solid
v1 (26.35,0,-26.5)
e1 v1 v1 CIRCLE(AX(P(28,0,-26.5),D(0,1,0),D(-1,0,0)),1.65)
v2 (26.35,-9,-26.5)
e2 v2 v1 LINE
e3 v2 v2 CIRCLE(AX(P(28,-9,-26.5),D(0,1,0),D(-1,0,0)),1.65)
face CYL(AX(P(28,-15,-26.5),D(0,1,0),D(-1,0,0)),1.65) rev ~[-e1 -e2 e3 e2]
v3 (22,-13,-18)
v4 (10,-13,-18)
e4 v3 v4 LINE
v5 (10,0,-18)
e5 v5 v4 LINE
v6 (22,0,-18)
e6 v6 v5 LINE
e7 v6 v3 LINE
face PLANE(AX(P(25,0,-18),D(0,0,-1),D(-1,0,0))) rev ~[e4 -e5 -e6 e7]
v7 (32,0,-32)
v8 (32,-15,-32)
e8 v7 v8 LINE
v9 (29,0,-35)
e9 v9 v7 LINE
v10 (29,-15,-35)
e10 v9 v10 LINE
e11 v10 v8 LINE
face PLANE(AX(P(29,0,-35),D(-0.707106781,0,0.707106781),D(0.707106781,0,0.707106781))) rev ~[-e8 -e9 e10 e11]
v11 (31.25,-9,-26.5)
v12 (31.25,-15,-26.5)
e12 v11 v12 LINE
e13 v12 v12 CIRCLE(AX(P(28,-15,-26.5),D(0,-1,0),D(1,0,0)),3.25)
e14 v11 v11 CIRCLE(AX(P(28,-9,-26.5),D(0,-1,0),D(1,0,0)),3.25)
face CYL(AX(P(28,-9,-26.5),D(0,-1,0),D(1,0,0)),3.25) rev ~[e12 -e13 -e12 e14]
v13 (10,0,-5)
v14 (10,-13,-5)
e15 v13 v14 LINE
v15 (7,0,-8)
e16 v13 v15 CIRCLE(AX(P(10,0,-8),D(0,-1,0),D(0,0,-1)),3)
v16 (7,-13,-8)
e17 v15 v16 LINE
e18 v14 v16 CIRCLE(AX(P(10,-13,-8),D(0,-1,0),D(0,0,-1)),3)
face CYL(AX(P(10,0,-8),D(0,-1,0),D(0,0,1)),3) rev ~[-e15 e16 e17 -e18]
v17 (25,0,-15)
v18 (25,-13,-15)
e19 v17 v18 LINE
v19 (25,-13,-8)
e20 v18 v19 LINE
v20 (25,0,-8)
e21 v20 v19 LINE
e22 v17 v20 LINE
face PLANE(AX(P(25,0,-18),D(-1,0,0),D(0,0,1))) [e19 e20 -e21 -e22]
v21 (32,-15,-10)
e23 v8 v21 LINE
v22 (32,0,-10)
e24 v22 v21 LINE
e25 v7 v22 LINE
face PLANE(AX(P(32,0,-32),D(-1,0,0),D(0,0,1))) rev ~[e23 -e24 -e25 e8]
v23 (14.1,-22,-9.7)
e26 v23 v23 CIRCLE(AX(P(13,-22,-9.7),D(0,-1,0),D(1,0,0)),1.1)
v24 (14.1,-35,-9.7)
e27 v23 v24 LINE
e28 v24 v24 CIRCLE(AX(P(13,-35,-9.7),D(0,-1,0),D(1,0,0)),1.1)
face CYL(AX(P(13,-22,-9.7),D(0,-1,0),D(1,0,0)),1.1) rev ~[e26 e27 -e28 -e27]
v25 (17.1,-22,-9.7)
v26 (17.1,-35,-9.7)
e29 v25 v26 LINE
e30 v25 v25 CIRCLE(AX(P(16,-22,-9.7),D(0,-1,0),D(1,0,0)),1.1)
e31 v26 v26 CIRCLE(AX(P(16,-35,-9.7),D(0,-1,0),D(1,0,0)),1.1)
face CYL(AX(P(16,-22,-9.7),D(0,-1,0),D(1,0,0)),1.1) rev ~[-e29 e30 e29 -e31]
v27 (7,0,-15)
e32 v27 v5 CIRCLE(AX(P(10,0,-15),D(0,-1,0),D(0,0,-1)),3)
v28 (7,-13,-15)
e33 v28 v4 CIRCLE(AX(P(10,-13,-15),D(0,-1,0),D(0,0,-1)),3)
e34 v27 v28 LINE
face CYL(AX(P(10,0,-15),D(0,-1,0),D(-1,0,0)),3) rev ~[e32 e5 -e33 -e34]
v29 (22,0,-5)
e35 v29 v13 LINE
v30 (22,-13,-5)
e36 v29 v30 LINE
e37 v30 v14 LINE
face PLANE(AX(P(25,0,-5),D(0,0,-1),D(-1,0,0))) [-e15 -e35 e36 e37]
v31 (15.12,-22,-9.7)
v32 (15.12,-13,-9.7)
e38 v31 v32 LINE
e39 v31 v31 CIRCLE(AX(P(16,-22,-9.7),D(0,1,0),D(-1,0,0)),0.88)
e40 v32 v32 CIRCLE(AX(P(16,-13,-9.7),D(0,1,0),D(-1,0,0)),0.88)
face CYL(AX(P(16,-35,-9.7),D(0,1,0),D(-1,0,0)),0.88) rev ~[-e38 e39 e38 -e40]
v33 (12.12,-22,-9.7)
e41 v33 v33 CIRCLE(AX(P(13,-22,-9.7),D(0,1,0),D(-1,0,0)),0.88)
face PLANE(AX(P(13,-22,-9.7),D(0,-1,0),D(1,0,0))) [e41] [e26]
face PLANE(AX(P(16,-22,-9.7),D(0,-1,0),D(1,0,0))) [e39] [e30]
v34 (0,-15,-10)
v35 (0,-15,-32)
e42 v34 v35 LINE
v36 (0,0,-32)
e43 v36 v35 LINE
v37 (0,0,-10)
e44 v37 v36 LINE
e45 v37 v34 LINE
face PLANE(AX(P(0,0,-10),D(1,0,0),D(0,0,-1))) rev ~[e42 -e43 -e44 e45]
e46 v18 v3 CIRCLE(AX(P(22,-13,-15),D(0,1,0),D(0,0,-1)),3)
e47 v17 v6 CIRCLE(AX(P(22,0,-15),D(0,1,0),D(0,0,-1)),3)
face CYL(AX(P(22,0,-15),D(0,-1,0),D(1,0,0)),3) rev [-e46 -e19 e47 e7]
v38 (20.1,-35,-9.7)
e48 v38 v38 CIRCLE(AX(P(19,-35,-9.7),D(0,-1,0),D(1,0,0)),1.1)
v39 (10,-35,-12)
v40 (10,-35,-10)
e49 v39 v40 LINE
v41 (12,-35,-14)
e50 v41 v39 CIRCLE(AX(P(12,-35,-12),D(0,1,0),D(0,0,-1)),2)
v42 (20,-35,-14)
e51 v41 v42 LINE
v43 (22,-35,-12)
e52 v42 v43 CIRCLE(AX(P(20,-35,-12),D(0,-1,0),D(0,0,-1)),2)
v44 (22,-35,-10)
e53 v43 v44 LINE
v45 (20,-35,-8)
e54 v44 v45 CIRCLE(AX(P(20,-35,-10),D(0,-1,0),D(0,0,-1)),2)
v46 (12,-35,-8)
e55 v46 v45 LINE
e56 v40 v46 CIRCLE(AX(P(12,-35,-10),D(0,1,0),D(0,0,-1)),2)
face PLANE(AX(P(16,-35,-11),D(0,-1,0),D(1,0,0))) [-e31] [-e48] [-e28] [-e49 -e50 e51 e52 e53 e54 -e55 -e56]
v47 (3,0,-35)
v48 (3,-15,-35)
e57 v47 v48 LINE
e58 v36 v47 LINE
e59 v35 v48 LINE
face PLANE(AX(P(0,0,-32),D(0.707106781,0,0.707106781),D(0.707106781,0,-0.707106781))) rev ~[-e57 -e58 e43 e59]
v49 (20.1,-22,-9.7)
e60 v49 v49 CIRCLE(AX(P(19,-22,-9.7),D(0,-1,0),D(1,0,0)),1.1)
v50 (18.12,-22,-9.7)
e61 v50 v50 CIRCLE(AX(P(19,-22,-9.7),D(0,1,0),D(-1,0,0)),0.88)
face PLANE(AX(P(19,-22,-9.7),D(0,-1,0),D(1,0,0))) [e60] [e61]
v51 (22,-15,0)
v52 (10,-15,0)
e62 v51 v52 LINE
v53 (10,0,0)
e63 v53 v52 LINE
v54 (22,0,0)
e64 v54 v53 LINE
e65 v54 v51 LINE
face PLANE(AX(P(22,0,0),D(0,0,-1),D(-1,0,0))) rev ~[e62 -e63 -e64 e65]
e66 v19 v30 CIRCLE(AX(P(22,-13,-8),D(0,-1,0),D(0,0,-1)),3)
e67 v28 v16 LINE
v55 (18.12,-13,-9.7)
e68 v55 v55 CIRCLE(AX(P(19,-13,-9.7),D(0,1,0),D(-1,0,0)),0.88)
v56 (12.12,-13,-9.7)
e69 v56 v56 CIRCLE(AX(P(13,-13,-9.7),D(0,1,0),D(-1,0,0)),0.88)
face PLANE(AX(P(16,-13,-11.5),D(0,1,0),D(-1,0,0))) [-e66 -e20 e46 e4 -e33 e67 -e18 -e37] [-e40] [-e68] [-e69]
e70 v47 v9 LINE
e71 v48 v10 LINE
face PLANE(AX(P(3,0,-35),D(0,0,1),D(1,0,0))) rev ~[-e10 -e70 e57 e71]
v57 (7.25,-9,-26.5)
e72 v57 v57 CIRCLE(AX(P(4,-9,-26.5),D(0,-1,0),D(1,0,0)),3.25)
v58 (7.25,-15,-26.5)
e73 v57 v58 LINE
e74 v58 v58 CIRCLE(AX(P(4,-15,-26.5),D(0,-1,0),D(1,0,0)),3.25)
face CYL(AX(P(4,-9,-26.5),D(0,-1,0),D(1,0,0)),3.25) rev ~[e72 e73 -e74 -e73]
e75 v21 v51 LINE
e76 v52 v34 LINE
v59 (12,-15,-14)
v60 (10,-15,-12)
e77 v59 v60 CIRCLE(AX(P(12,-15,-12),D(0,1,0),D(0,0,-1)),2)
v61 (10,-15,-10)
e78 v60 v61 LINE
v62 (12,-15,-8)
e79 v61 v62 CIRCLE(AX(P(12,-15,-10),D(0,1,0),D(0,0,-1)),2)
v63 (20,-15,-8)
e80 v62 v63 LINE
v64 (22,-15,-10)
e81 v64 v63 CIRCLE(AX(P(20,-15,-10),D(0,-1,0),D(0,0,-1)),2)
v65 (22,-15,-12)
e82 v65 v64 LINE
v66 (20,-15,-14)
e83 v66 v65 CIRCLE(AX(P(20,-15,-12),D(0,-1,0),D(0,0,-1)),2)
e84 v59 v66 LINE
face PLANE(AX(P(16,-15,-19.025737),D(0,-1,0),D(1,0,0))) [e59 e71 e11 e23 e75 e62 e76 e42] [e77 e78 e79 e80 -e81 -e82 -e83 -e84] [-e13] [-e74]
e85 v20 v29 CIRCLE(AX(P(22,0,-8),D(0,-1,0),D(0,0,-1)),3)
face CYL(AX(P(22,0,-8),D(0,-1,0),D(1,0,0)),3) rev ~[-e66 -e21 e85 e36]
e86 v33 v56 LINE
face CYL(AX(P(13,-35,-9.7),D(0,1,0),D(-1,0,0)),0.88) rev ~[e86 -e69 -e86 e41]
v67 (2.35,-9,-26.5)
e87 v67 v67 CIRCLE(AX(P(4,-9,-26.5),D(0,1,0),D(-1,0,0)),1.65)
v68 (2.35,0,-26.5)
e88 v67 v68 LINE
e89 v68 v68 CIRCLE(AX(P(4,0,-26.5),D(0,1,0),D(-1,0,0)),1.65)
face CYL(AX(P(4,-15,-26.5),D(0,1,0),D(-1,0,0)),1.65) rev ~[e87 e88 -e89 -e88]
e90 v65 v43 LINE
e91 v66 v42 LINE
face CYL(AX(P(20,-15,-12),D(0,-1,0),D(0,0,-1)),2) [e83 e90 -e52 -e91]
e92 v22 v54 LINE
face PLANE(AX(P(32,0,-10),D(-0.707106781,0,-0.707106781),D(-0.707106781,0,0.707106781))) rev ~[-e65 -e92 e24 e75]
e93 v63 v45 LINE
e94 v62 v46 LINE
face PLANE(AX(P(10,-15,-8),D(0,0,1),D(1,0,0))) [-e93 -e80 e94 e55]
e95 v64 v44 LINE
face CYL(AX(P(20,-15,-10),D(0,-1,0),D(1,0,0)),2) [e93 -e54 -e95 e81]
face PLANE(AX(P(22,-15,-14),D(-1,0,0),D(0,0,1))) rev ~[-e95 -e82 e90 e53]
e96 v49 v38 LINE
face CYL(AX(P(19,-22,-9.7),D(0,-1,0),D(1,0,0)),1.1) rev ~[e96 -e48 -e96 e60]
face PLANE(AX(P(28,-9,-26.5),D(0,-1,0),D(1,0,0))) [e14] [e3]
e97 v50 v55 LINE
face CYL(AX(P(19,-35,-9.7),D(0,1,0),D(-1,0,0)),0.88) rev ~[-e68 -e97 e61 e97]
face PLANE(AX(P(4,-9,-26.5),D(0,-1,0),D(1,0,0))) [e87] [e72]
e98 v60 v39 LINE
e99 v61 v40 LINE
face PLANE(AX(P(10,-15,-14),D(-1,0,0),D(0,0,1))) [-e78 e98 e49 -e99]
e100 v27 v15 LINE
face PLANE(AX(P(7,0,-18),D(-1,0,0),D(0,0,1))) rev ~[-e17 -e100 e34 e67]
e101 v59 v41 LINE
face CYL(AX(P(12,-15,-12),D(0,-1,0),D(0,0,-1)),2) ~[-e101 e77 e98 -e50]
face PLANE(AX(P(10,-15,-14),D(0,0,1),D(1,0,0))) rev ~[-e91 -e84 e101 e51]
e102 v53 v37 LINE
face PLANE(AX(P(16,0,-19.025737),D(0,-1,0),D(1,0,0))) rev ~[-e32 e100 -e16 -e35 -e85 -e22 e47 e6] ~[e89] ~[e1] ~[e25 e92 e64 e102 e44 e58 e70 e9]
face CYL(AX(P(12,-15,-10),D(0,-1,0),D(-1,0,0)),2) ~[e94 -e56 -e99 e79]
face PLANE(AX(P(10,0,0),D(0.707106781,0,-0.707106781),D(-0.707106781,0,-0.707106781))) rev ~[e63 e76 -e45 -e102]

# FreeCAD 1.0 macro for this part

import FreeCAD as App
import Part
import Sketcher
Q = App.Units.Quantity


def edges_at(feature, points):
    """Names of the edges that pass closest to the given points."""
    edges = feature.Shape.Edges
    near = lambda p: min(range(len(edges)), key=lambda i: edges[i].distToShape(Part.Vertex(*p))[0])
    return sorted({f"Edge{near(p) + 1}" for p in points})


def add_polygon(sketch, points):
    """Adds a closed chain of lines whose ends are joined by coincident constraints."""
    first, n = sketch.GeometryCount, len(points)
    for a, b in zip(points, points[1:] + points[:1]):
        sketch.addGeometry(Part.LineSegment(App.Vector(*a, 0), App.Vector(*b, 0)), False)
    for i in range(n):
        sketch.addConstraint(Sketcher.Constraint("Coincident", first + i, 2, first + (i + 1) % n, 1))

doc = App.newDocument("Part")
body = doc.addObject("PartDesign::Body", "Body")

# Sketch on XZ plane
sketch1 = body.newObject("Sketcher::SketchObject", "Sketch")
sketch1.AttachmentSupport = (doc.getObject("XZ_Plane"), [""])
sketch1.MapMode = "FlatFace"
add_polygon(sketch1, [(22, 0), (10, 0), (0, -10), (0, -32), (3, -35), (29, -35), (32, -32), (32, -10)])  # lines 0-7
sketch1.addConstraint([
    Sketcher.Constraint("Horizontal", 0),
    Sketcher.Constraint("Vertical", 2),
    Sketcher.Constraint("Horizontal", 4),
    Sketcher.Constraint("Vertical", 6),
    Sketcher.Constraint("PointOnObject", 0, 2, -1),
    Sketcher.Constraint("PointOnObject", 1, 2, -2),
    Sketcher.Constraint("Perpendicular", 1, 3),
    Sketcher.Constraint("Perpendicular", 3, 5),
    Sketcher.Constraint("Perpendicular", 5, 7),
    Sketcher.Constraint("Horizontal", 2, 2, 5, 2),
    Sketcher.Constraint("Horizontal", 1, 2, 6, 2),
    Sketcher.Constraint("Equal", 3, 5),
    Sketcher.Constraint("DistanceX", 0, 2, 0, 1, Q("12 mm")),
    Sketcher.Constraint("DistanceX", 4, 1, 4, 2, Q("26 mm")),
    Sketcher.Constraint("DistanceY", 2, 2, 2, 1, Q("22 mm")),
    Sketcher.Constraint("DistanceX", -1, 1, 0, 2, Q("10 mm")),
])
pad1 = body.newObject("PartDesign::Pad", "Pad")
pad1.Profile = sketch1
pad1.Length = 15

# Sketch on XZ plane
sketch2 = body.newObject("Sketcher::SketchObject", "Sketch001")
sketch2.AttachmentSupport = (doc.getObject("XZ_Plane"), [""])
sketch2.MapMode = "FlatFace"
sketch2.AttachmentOffset = App.Placement(App.Vector(0, 0, 15), App.Rotation())
add_polygon(sketch2, [(10, -8), (10, -14), (22, -14), (22, -8)])  # lines 0-3
sketch2.addConstraint([
    Sketcher.Constraint("Vertical", 0),
    Sketcher.Constraint("Horizontal", 1),
    Sketcher.Constraint("Vertical", 2),
    Sketcher.Constraint("Horizontal", 3),
    Sketcher.Constraint("DistanceX", 1, 1, 1, 2, Q("12 mm")),
    Sketcher.Constraint("DistanceY", 0, 2, 0, 1, Q("6 mm")),
    Sketcher.Constraint("DistanceX", -1, 1, 0, 2, Q("10 mm")),
    Sketcher.Constraint("DistanceY", 0, 2, -1, 1, Q("14 mm")),
])
pad2 = body.newObject("PartDesign::Pad", "Pad001")
pad2.Profile = sketch2
pad2.Length = 20

# Sketch on XZ plane
sketch3 = body.newObject("Sketcher::SketchObject", "Sketch002")
sketch3.AttachmentSupport = (doc.getObject("XZ_Plane"), [""])
sketch3.MapMode = "FlatFace"
add_polygon(sketch3, [(25, -5), (25, -18), (7, -18), (7, -5)])  # lines 0-3
sketch3.addConstraint([
    Sketcher.Constraint("Vertical", 0),
    Sketcher.Constraint("Horizontal", 1),
    Sketcher.Constraint("Vertical", 2),
    Sketcher.Constraint("Horizontal", 3),
    Sketcher.Constraint("DistanceX", 1, 2, 1, 1, Q("18 mm")),
    Sketcher.Constraint("DistanceY", 0, 2, 0, 1, Q("13 mm")),
    Sketcher.Constraint("DistanceX", -1, 1, 0, 2, Q("25 mm")),
    Sketcher.Constraint("DistanceY", 0, 2, -1, 1, Q("18 mm")),
])
pocket1 = body.newObject("PartDesign::Pocket", "Pocket")
pocket1.Profile = sketch3
pocket1.Length = 13
pocket1.Reversed = True
doc.recompute()

fillet = body.newObject("PartDesign::Fillet", "Fillet")
fillet.Base = (pocket1, edges_at(pocket1, [
    (25, -6.5, -5),
    (7, -6.5, -5),
    (25, -6.5, -18),
    (7, -6.5, -18),
]))
fillet.Radius = 3

# Sketch on XZ plane
sketch4 = body.newObject("Sketcher::SketchObject", "Sketch003")
sketch4.AttachmentSupport = (doc.getObject("XZ_Plane"), [""])
sketch4.MapMode = "FlatFace"
sketch4.AttachmentOffset = App.Placement(App.Vector(0, 0, 15), App.Rotation())
sketch4.addGeometry([
    Part.Circle(App.Vector(4, -26.5, 0), App.Vector(0, 0, 1), 1.6),
    Part.Circle(App.Vector(28, -26.5, 0), App.Vector(0, 0, 1), 1.6),
], False)
sketch4.addConstraint([
    Sketcher.Constraint("Equal", 0, 1),
    Sketcher.Constraint("Horizontal", 0, 3, 1, 3),
    Sketcher.Constraint("Diameter", 0, Q("3.3 mm")),
    Sketcher.Constraint("DistanceX", -1, 1, 0, 3, Q("4 mm")),
    Sketcher.Constraint("DistanceX", -1, 1, 1, 3, Q("28 mm")),
    Sketcher.Constraint("DistanceY", 0, 3, -1, 1, Q("26.5 mm")),
])
doc.recompute()
hole = body.newObject("PartDesign::Hole", "Hole")
hole.Profile = sketch4
hole.ThreadType = "None"
hole.Diameter = 3.3
hole.DepthType = "ThroughAll"
hole.HoleCutType = "Counterbore"
hole.HoleCutDiameter = 6.5
hole.HoleCutDepth = 6
doc.recompute()

fillet2 = body.newObject("PartDesign::Fillet", "Fillet001")
fillet2.Base = (hole, edges_at(hole, [
    (22, -25, -8),
    (22, -25, -14),
    (10, -25, -8),
    (10, -25, -14),
]))
fillet2.Radius = 2

# Sketch on XZ plane
sketch5 = body.newObject("Sketcher::SketchObject", "Sketch004")
sketch5.AttachmentSupport = (doc.getObject("XZ_Plane"), [""])
sketch5.MapMode = "FlatFace"
sketch5.AttachmentOffset = App.Placement(App.Vector(0, 0, 35), App.Rotation())
sketch5.addGeometry([
    Part.Circle(App.Vector(19, -9.7, 0), App.Vector(0, 0, 1), 0.9),
    Part.Circle(App.Vector(16, -9.7, 0), App.Vector(0, 0, 1), 0.9),
    Part.Circle(App.Vector(13, -9.7, 0), App.Vector(0, 0, 1), 0.9),
], False)
sketch5.addConstraint([
    Sketcher.Constraint("Equal", 0, 1),
    Sketcher.Constraint("Equal", 1, 2),
    Sketcher.Constraint("Horizontal", 0, 3, 1, 3),
    Sketcher.Constraint("Horizontal", 1, 3, 2, 3),
    Sketcher.Constraint("Diameter", 0, Q("1.76 mm")),
    Sketcher.Constraint("DistanceX", -1, 1, 0, 3, Q("19 mm")),
    Sketcher.Constraint("DistanceX", -1, 1, 1, 3, Q("16 mm")),
    Sketcher.Constraint("DistanceX", -1, 1, 2, 3, Q("13 mm")),
    Sketcher.Constraint("DistanceY", 0, 3, -1, 1, Q("9.7 mm")),
])
doc.recompute()
hole2 = body.newObject("PartDesign::Hole", "Hole001")
hole2.Profile = sketch5
hole2.ThreadType = "None"
hole2.Diameter = 1.76
hole2.DepthType = "ThroughAll"
hole2.HoleCutType = "Counterbore"
hole2.HoleCutDiameter = 2.2
hole2.HoleCutDepth = 13

doc.recompute()
